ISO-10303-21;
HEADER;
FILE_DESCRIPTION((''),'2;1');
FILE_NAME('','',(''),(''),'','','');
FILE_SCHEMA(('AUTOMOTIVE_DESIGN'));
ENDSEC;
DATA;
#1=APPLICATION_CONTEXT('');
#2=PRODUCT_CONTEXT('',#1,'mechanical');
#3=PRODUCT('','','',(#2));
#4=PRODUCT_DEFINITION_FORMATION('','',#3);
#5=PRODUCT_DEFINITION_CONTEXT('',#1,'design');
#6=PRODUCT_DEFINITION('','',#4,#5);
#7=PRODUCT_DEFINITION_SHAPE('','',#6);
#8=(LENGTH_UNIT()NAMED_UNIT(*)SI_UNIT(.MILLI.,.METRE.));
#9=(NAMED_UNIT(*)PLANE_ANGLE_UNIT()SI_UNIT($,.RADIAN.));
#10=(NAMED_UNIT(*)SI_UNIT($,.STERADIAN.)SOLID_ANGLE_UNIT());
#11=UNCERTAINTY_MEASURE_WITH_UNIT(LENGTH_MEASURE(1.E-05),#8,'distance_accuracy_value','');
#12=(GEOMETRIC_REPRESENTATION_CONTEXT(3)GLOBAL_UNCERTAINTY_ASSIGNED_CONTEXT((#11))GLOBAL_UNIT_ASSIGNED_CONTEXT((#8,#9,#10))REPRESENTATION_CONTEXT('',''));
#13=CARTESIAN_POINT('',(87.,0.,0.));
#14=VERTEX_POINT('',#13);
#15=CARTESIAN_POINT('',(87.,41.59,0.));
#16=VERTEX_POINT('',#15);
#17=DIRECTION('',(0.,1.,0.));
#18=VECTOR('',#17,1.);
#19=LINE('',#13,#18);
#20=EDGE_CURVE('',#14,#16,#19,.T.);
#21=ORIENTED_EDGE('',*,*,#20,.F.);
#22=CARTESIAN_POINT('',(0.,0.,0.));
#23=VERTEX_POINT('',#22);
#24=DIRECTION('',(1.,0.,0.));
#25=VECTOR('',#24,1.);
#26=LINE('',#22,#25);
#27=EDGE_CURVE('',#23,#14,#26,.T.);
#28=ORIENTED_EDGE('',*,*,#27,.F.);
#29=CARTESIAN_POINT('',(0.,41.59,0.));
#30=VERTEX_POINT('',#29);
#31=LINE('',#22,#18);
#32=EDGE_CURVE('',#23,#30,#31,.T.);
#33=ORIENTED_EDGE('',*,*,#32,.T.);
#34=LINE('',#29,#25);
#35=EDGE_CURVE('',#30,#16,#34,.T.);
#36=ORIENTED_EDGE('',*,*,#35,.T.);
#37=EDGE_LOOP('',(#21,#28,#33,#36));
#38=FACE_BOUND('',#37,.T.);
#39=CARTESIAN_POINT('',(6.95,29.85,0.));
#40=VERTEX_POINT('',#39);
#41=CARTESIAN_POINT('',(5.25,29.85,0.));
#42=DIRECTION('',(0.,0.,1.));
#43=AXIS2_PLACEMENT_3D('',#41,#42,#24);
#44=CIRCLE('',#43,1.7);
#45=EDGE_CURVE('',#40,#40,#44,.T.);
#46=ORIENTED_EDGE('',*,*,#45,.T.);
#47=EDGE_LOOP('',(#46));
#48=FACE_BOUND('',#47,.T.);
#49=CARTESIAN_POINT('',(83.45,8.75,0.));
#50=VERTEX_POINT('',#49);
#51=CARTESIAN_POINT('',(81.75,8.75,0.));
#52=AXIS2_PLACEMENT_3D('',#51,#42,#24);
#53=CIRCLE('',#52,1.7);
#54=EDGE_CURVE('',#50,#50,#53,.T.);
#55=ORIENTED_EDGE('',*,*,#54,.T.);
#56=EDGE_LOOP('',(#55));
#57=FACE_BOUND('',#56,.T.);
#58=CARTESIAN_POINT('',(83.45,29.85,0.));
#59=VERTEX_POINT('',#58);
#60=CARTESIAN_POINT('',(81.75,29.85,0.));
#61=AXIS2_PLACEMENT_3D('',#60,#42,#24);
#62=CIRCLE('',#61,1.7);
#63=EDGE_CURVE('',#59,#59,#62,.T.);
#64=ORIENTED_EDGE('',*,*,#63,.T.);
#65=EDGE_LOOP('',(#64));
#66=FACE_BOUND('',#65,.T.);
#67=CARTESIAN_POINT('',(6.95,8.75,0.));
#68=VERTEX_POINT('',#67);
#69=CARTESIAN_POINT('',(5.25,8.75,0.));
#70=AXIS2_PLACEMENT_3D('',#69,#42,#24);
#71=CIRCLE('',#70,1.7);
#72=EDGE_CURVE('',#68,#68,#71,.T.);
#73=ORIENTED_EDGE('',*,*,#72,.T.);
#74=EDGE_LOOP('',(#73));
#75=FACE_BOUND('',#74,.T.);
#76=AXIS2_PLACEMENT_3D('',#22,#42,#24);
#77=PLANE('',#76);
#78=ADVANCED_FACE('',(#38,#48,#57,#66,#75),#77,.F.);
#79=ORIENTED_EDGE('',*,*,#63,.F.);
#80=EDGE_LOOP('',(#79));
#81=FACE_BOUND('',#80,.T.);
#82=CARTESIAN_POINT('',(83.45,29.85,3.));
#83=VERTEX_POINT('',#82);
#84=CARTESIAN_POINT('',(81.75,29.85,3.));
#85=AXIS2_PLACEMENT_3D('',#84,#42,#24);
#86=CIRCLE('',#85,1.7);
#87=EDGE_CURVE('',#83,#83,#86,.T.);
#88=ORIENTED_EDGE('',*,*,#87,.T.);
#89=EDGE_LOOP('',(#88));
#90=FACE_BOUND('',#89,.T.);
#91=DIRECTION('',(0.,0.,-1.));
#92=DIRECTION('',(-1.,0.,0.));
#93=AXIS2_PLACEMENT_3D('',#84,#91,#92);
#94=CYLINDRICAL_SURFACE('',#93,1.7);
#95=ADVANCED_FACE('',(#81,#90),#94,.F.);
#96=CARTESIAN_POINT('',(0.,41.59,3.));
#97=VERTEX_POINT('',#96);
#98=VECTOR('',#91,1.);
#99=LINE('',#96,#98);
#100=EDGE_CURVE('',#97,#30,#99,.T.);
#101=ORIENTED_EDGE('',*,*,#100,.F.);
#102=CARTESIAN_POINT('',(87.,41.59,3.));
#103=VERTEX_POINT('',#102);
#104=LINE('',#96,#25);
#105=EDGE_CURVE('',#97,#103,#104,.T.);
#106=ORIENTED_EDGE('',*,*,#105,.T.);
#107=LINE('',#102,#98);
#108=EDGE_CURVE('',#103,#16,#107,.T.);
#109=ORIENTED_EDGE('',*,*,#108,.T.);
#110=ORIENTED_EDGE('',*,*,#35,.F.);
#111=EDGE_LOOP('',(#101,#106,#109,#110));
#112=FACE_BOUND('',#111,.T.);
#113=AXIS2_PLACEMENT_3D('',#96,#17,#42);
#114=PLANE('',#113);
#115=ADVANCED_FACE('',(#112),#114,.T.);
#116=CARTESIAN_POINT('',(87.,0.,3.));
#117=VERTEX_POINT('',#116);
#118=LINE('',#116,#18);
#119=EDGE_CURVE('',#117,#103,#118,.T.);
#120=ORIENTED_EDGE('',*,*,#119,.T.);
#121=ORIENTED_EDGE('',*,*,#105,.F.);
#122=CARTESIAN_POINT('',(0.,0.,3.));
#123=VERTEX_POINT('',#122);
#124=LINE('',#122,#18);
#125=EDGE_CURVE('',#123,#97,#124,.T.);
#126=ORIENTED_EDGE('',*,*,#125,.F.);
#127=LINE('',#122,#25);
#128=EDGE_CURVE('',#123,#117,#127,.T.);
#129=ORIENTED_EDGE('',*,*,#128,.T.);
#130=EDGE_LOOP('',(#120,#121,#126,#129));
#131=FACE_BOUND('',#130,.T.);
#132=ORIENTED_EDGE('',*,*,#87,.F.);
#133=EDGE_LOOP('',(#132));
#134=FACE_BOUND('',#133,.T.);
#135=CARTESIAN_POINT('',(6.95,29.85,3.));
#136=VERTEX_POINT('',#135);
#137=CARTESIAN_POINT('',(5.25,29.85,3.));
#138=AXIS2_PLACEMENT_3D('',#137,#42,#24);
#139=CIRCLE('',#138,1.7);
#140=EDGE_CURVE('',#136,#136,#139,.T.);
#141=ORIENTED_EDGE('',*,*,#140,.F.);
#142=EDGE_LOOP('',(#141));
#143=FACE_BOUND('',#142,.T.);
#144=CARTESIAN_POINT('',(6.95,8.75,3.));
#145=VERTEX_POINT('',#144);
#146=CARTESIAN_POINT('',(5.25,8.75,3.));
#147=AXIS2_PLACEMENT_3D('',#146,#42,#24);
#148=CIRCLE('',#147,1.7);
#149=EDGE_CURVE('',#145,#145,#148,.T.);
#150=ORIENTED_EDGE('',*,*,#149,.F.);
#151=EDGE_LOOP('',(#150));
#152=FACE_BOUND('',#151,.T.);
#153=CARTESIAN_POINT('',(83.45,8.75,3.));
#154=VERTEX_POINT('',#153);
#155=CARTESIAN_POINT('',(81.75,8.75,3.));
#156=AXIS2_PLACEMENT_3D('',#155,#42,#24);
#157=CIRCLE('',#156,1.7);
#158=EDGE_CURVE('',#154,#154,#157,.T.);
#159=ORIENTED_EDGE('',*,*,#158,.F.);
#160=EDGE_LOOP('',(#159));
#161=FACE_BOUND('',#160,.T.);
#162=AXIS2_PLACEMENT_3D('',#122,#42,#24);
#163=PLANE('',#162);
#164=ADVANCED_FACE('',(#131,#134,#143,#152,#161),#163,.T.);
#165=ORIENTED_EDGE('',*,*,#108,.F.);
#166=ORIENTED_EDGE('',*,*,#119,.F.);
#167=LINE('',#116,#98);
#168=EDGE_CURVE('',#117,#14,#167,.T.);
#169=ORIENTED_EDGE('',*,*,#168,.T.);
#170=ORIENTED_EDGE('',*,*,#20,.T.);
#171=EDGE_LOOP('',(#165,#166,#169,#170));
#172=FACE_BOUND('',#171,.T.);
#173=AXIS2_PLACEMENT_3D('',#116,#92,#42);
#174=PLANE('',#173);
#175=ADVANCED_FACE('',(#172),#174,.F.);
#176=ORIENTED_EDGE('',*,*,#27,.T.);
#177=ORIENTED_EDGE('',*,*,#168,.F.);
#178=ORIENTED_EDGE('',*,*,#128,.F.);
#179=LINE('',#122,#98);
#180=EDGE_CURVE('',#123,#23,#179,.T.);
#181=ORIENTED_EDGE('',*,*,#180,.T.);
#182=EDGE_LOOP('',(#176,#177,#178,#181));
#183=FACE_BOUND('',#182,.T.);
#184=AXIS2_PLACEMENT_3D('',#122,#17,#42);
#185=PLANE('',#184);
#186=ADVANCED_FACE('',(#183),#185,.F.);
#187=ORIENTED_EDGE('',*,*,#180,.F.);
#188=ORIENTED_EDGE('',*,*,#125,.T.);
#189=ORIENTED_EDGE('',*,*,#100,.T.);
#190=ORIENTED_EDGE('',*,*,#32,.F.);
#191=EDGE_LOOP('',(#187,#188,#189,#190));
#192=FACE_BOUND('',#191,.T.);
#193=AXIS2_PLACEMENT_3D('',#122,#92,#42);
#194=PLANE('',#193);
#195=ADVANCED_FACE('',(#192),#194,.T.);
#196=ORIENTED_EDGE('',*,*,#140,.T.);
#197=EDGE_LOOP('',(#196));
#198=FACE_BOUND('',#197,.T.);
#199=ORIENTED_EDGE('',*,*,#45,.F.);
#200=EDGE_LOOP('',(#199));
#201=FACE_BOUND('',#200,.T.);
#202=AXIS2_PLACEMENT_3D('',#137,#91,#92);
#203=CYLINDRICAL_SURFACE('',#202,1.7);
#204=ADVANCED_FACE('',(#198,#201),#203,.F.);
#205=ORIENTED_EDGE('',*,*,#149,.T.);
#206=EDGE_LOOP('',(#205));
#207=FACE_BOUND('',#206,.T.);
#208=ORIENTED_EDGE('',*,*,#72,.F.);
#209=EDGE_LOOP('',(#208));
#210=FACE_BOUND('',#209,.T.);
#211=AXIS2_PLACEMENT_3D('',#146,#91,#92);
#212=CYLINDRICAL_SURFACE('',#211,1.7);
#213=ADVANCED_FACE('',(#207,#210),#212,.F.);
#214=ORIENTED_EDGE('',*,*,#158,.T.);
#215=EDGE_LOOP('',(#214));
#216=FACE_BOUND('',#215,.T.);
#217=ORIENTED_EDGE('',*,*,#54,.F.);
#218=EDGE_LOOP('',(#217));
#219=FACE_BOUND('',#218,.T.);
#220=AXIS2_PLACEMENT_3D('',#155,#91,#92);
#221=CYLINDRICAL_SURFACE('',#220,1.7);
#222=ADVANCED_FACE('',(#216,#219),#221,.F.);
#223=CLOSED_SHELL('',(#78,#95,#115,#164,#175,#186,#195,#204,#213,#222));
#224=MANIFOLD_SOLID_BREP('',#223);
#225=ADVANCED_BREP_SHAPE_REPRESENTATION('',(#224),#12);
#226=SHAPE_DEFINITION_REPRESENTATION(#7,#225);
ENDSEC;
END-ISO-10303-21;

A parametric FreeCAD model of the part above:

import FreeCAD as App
import Part
import Sketcher

doc = App.newDocument("Part")
body = doc.addObject("PartDesign::Body", "Body")

# Sketch on XY plane
sketch1 = doc.addObject("Sketcher::SketchObject", "Sketch")
body.addObject(sketch1)
sketch1.AttachmentSupport = (doc.XY_Plane, [""])
sketch1.MapMode = "FlatFace"
sketch1.addGeometry(Part.LineSegment(App.Vector(0, 41.59, 0), App.Vector(0, 0, 0)), False)
sketch1.addGeometry(Part.LineSegment(App.Vector(0, 0, 0), App.Vector(87, 0, 0)), False)
sketch1.addGeometry(Part.LineSegment(App.Vector(87, 0, 0), App.Vector(87, 41.59, 0)), False)
sketch1.addGeometry(Part.LineSegment(App.Vector(87, 41.59, 0), App.Vector(0, 41.59, 0)), False)
sketch1.addGeometry(Part.Circle(App.Vector(5.25, 8.75, 0), App.Vector(0, 0, 1), 1.7), False)
sketch1.addGeometry(Part.Circle(App.Vector(81.75, 8.75, 0), App.Vector(0, 0, 1), 1.7), False)
sketch1.addGeometry(Part.Circle(App.Vector(5.25, 29.85, 0), App.Vector(0, 0, 1), 1.7), False)
sketch1.addGeometry(Part.Circle(App.Vector(81.75, 29.85, 0), App.Vector(0, 0, 1), 1.7), False)
sketch1.addConstraint(Sketcher.Constraint("Coincident", 0, 2, 1, 1))
sketch1.addConstraint(Sketcher.Constraint("Coincident", 1, 2, 2, 1))
sketch1.addConstraint(Sketcher.Constraint("Coincident", 2, 2, 3, 1))
sketch1.addConstraint(Sketcher.Constraint("Coincident", 3, 2, 0, 1))
sketch1.addConstraint(Sketcher.Constraint("Vertical", 0))
sketch1.addConstraint(Sketcher.Constraint("Horizontal", 1))
sketch1.addConstraint(Sketcher.Constraint("Vertical", 2))
sketch1.addConstraint(Sketcher.Constraint("Horizontal", 3))
sketch1.addConstraint(Sketcher.Constraint("Coincident", 0, 2, -1, 1))
sketch1.addConstraint(Sketcher.Constraint("Equal", 4, 5))
sketch1.addConstraint(Sketcher.Constraint("Equal", 5, 6))
sketch1.addConstraint(Sketcher.Constraint("Equal", 6, 7))
sketch1.addConstraint(Sketcher.Constraint("Horizontal", 4, 3, 5, 3))
sketch1.addConstraint(Sketcher.Constraint("Horizontal", 6, 3, 7, 3))
sketch1.addConstraint(Sketcher.Constraint("Vertical", 4, 3, 6, 3))
sketch1.addConstraint(Sketcher.Constraint("Vertical", 5, 3, 7, 3))
sketch1.addConstraint(Sketcher.Constraint("Diameter", 4, 3.4))
sketch1.addConstraint(Sketcher.Constraint("DistanceX", 1, 1, 1, 2, 87.0))
sketch1.addConstraint(Sketcher.Constraint("DistanceY", 0, 2, 0, 1, 41.59))
sketch1.addConstraint(Sketcher.Constraint("DistanceX", 4, 3, 5, 3, 76.5))
sketch1.addConstraint(Sketcher.Constraint("DistanceY", 4, 3, 6, 3, 21.1))
sketch1.addConstraint(Sketcher.Constraint("DistanceX", -1, 1, 4, 3, 5.25))
sketch1.addConstraint(Sketcher.Constraint("DistanceY", -1, 1, 4, 3, 8.75))
pad1 = doc.addObject("PartDesign::Pad", "Pad")
body.addObject(pad1)
pad1.Profile = sketch1
pad1.Length = 3

doc.recompute()
